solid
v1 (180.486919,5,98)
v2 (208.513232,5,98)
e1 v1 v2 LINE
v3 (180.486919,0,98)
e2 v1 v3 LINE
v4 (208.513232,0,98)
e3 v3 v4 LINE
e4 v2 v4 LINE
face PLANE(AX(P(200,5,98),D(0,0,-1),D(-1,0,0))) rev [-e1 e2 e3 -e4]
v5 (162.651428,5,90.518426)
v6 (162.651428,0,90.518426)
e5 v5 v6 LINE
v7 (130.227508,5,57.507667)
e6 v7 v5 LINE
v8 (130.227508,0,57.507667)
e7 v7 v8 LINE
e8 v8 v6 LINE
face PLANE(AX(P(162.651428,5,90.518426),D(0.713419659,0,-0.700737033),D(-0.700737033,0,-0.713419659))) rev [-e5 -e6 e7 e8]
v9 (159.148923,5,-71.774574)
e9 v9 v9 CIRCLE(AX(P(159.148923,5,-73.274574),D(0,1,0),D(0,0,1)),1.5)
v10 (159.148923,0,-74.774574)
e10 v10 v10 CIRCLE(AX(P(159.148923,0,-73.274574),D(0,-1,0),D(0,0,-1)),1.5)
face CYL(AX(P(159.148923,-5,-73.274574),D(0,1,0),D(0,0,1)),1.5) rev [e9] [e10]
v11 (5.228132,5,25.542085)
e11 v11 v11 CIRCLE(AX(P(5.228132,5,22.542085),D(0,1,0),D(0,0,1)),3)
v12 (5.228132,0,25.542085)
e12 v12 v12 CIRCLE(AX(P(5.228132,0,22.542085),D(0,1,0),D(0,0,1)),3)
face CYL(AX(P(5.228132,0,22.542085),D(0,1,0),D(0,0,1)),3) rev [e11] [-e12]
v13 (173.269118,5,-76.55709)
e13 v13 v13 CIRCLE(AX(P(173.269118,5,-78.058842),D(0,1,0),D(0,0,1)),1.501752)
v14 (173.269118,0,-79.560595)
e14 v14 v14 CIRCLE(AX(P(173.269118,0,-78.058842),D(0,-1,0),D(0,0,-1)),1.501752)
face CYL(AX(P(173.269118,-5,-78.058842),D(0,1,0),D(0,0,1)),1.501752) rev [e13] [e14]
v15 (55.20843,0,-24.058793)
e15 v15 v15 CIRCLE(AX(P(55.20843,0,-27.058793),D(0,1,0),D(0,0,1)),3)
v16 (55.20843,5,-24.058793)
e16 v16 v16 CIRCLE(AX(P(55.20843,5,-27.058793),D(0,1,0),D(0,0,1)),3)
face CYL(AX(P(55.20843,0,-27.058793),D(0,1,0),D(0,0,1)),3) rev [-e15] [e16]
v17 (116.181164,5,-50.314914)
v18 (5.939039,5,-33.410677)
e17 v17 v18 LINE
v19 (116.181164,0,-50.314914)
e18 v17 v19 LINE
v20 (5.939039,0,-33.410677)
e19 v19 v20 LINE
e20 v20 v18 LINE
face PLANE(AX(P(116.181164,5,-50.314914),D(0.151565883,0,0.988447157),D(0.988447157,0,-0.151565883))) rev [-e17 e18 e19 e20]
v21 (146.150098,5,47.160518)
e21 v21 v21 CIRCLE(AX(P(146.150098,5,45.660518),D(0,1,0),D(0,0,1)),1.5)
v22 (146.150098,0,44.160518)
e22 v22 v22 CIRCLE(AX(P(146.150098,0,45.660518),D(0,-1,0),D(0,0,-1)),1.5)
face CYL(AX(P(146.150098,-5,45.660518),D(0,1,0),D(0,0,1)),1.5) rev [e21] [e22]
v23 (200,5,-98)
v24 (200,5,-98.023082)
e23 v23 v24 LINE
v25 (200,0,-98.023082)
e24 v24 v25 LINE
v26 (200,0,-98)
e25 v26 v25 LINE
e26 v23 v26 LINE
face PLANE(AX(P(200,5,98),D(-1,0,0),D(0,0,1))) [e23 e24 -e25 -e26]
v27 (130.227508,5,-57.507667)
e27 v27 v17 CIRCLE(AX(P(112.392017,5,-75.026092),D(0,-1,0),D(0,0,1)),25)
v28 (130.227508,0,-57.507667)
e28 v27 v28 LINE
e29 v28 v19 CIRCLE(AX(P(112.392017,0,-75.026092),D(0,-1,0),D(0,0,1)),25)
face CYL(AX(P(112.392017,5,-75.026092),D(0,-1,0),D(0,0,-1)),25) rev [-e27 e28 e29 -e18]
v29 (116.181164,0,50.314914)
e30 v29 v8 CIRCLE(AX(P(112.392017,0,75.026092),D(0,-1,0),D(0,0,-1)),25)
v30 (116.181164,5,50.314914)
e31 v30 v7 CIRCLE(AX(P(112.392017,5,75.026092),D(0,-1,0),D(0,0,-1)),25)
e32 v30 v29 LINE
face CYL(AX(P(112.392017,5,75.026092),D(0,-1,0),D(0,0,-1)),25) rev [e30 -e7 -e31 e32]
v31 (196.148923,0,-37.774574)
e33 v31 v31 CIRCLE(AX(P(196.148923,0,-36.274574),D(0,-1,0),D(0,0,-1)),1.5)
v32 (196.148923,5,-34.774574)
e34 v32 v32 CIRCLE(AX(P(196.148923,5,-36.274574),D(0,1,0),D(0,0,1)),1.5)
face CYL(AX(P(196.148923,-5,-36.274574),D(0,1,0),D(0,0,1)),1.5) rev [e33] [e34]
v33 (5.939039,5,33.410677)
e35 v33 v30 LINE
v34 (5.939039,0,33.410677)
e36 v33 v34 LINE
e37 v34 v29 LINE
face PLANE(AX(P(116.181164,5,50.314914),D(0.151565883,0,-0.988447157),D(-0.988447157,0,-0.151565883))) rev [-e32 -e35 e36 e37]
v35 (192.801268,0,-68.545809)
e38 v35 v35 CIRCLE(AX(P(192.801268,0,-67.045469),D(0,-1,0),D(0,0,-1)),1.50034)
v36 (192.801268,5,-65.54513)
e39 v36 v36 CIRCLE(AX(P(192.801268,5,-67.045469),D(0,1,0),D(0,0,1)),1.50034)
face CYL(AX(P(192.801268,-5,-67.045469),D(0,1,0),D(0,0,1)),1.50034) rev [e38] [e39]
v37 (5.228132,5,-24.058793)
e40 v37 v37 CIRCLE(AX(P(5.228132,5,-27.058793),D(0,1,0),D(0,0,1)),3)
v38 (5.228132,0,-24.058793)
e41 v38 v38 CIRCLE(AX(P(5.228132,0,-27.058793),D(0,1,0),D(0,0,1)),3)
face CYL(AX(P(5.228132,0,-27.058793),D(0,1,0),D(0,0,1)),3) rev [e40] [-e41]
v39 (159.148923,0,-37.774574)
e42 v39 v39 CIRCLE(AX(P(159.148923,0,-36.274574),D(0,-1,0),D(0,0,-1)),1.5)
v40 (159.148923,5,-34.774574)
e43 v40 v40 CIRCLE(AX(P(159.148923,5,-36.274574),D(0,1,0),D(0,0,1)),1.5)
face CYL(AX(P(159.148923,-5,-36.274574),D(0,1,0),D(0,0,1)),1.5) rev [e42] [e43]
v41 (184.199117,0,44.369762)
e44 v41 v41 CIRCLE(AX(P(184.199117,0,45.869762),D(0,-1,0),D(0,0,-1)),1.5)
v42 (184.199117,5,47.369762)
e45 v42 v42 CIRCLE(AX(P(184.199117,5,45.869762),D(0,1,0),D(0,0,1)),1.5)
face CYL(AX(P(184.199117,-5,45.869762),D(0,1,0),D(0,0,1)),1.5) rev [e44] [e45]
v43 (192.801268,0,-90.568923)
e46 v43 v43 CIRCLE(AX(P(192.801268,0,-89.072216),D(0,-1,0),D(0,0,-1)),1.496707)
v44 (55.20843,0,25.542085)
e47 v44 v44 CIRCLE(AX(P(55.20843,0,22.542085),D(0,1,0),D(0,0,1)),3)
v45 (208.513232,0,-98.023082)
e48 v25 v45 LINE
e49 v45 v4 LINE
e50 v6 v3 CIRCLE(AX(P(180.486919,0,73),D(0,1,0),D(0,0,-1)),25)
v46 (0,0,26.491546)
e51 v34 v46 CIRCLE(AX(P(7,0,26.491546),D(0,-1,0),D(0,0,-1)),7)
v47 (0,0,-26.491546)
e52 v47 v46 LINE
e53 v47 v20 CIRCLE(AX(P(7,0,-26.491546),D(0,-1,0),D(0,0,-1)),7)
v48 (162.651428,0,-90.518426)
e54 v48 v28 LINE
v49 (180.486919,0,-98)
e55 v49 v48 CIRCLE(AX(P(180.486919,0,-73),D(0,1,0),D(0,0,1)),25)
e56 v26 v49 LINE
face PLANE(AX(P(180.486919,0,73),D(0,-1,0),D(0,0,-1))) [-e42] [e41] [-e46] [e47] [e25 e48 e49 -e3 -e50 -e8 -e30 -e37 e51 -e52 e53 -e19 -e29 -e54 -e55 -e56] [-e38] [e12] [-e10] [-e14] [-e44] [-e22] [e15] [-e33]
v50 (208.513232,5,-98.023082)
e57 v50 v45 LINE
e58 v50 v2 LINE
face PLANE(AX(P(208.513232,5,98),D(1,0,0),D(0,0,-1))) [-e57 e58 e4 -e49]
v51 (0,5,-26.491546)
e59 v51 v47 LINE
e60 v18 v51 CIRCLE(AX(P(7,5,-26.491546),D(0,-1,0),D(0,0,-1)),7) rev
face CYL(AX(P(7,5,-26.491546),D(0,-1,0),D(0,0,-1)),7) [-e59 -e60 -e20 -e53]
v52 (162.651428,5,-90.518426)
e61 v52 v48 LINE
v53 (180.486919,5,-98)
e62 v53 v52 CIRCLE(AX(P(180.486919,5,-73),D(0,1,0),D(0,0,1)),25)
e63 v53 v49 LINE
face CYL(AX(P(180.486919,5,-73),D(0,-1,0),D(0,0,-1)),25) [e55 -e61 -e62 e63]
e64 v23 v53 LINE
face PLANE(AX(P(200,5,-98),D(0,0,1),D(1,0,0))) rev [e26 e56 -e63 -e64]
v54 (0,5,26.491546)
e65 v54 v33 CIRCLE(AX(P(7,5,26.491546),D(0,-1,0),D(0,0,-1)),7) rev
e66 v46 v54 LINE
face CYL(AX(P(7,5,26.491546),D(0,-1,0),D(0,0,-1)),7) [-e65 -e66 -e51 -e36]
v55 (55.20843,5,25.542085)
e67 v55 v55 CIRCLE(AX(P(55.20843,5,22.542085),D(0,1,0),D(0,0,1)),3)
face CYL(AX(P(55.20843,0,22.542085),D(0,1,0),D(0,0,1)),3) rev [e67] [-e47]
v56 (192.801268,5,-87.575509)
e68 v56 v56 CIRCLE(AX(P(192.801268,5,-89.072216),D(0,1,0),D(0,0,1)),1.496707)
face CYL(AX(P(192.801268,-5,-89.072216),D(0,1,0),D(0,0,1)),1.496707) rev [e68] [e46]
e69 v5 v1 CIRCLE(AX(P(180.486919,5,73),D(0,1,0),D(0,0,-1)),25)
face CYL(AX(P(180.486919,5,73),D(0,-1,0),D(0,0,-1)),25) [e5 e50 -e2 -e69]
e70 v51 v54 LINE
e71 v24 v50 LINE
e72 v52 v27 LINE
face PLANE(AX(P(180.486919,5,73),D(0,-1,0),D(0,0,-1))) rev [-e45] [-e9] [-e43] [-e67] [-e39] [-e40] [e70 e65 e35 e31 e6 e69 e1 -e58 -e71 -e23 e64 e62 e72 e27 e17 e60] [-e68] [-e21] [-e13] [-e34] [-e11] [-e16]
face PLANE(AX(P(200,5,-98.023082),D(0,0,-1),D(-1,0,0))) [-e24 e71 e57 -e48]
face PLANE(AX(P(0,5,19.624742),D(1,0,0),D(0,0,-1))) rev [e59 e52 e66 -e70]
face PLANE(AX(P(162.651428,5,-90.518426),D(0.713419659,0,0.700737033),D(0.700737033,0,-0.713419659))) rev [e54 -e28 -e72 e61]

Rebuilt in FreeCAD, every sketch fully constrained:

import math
import FreeCAD as App
import Part
import Sketcher

V = App.Vector
Q = App.Units.Quantity


def edges_at(feature, points):
    """Names of the edges that pass closest to the given points."""
    edges = feature.Shape.Edges
    near = lambda p: min(range(len(edges)), key=lambda i: edges[i].distToShape(Part.Vertex(*p))[0])
    return sorted({f"Edge{near(p) + 1}" for p in points})

doc = App.newDocument("Part")
params = doc.addObject("Spreadsheet::Sheet", "Params")
for row, (alias, value) in enumerate([
    ("sketch1_radius", "25 mm"),
    ("sketch1_height", "65 mm"),
    ("sketch1_height2", "196 mm"),
    ("pad1_length", "5 mm"),
    ("fillet_radius", "7 mm"),
    ("sketch2_diameter", "6 mm"),
    ("pocket1_length", "5 mm"),
    ("sketch3_diameter", "3 mm"),
    ("pocket2_length", "10 mm"),
    ("sketch4_diameter", "3 mm"),
    ("pocket3_length", "10 mm"),
    ("pad2_length", "5 mm"),
    ("pocket4_length", "10 mm"),
], start=1):
    params.set(f"A{row}", alias)
    params.set(f"B{row}", "=" + value)
    params.setAlias(f"B{row}", alias)

body = doc.addObject("PartDesign::Body", "Body")

# Sketch on XZ plane
sketch1 = body.newObject("Sketcher::SketchObject", "Sketch")
sketch1.AttachmentSupport = (doc.getObject("XZ_Plane"), [""])
sketch1.MapMode = "FlatFace"
sketch1.addGeometry(Part.LineSegment(V(200, -98, 0), V(180, -98, 0)), False)
sketch1.addGeometry(Part.ArcOfCircle(Part.Circle(V(180, -73, 0), V(0, 0, 1), 25), math.radians(-136), math.radians(-90)), False)
sketch1.addGeometry(Part.LineSegment(V(163, -91, 0), V(130, -58, 0)), False)
sketch1.addGeometry(Part.ArcOfCircle(Part.Circle(V(112, -75, 0), V(0, 0, 1), 25), math.radians(44), math.radians(81)), False)
sketch1.addGeometry(Part.LineSegment(V(116, -50, 0), V(0, -32, 0)), False)
sketch1.addGeometry(Part.LineSegment(V(0, -32, 0), V(0, 32, 0)), False)
sketch1.addGeometry(Part.LineSegment(V(0, 32, 0), V(116, 50, 0)), False)
sketch1.addGeometry(Part.ArcOfCircle(Part.Circle(V(112, 75, 0), V(0, 0, 1), 25), math.radians(-81), math.radians(-44)), False)
sketch1.addGeometry(Part.LineSegment(V(130, 58, 0), V(163, 91, 0)), False)
sketch1.addGeometry(Part.ArcOfCircle(Part.Circle(V(180, 73, 0), V(0, 0, 1), 25), math.radians(90), math.radians(136)), False)
sketch1.addGeometry(Part.LineSegment(V(180, 98, 0), V(200, 98, 0)), False)
sketch1.addGeometry(Part.LineSegment(V(200, 98, 0), V(200, -98, 0)), False)
sketch1.addConstraint(Sketcher.Constraint("Tangent", 0, 2, 1, 2))
sketch1.addConstraint(Sketcher.Constraint("Tangent", 1, 1, 2, 1))
sketch1.addConstraint(Sketcher.Constraint("Tangent", 2, 2, 3, 1))
sketch1.addConstraint(Sketcher.Constraint("Tangent", 3, 2, 4, 1))
sketch1.addConstraint(Sketcher.Constraint("Coincident", 4, 2, 5, 1))
sketch1.addConstraint(Sketcher.Constraint("Coincident", 5, 2, 6, 1))
sketch1.addConstraint(Sketcher.Constraint("Tangent", 6, 2, 7, 1))
sketch1.addConstraint(Sketcher.Constraint("Tangent", 7, 2, 8, 1))
sketch1.addConstraint(Sketcher.Constraint("Tangent", 8, 2, 9, 2))
sketch1.addConstraint(Sketcher.Constraint("Tangent", 9, 1, 10, 1))
sketch1.addConstraint(Sketcher.Constraint("Coincident", 10, 2, 11, 1))
sketch1.addConstraint(Sketcher.Constraint("Coincident", 11, 2, 0, 1))
sketch1.addConstraint(Sketcher.Constraint("Horizontal", 0))
sketch1.addConstraint(Sketcher.Constraint("Vertical", 5))
sketch1.addConstraint(Sketcher.Constraint("Horizontal", 10))
sketch1.addConstraint(Sketcher.Constraint("Vertical", 11))
sketch1.addConstraint(Sketcher.Constraint("Equal", 1, 3))
sketch1.addConstraint(Sketcher.Constraint("Equal", 3, 7))
sketch1.addConstraint(Sketcher.Constraint("Equal", 7, 9))
sketch1.addConstraint(Sketcher.Constraint("Symmetric", 4, 2, 5, 2, -1, 1))
sketch1.addConstraint(Sketcher.Constraint("Symmetric", 3, 3, 7, 3, -1))
sketch1.addConstraint(Sketcher.Constraint("Symmetric", 1, 3, 9, 3, -1))
sketch1.addConstraint(Sketcher.Constraint("Radius", 1, Q("25 mm")))
sketch1.addConstraint(Sketcher.Constraint("DistanceY", 5, 1, 5, 2, Q("65 mm")))
sketch1.addConstraint(Sketcher.Constraint("DistanceY", 11, 2, 11, 1, Q("196 mm")))
sketch1.addConstraint(Sketcher.Constraint("DistanceX", -1, 1, 10, 2, Q("200 mm")))
sketch1.addConstraint(Sketcher.Constraint("DistanceX", 0, 2, 0, 1, Q("19.513081 mm")))
sketch1.addConstraint(Sketcher.Constraint("DistanceX", -1, 1, 2, 2, Q("130.227508 mm")))
sketch1.addConstraint(Sketcher.Constraint("DistanceX", 1, 1, 0, 2, Q("17.835491 mm")))
sketch1.setExpression("Constraints[22]", "Params.sketch1_radius")
sketch1.setExpression("Constraints[23]", "Params.sketch1_height")
sketch1.setExpression("Constraints[24]", "Params.sketch1_height2")
pad1 = body.newObject("PartDesign::Pad", "Pad")
pad1.Profile = sketch1
pad1.setExpression("Length", "Params.pad1_length")
pad1.Reversed = True
doc.recompute()

fillet = body.newObject("PartDesign::Fillet", "Fillet")
fillet.Base = (pad1, edges_at(pad1, [(0, 2.5, 32.5), (0, 2.5, -32.5)]))
fillet.setExpression("Radius", "Params.fillet_radius")

# Sketch on XZ plane
sketch2 = body.newObject("Sketcher::SketchObject", "Sketch001")
sketch2.AttachmentSupport = (doc.getObject("XZ_Plane"), [""])
sketch2.MapMode = "FlatFace"
sketch2.AttachmentOffset = App.Placement(V(0, 0, -5), App.Rotation())
sketch2.addGeometry(Part.Circle(V(5.2, 22.5, 0), V(0, 0, 1), 3), False)
sketch2.addGeometry(Part.Circle(V(5.2, -27.1, 0), V(0, 0, 1), 3), False)
sketch2.addGeometry(Part.Circle(V(55.2, 22.5, 0), V(0, 0, 1), 3), False)
sketch2.addGeometry(Part.Circle(V(55.2, -27.1, 0), V(0, 0, 1), 3), False)
sketch2.addConstraint(Sketcher.Constraint("Equal", 0, 1))
sketch2.addConstraint(Sketcher.Constraint("Equal", 1, 2))
sketch2.addConstraint(Sketcher.Constraint("Equal", 2, 3))
sketch2.addConstraint(Sketcher.Constraint("Horizontal", 0, 3, 2, 3))
sketch2.addConstraint(Sketcher.Constraint("Horizontal", 1, 3, 3, 3))
sketch2.addConstraint(Sketcher.Constraint("Vertical", 0, 3, 1, 3))
sketch2.addConstraint(Sketcher.Constraint("Vertical", 2, 3, 3, 3))
sketch2.addConstraint(Sketcher.Constraint("Diameter", 0, Q("6 mm")))
sketch2.addConstraint(Sketcher.Constraint("DistanceX", -1, 1, 2, 3, Q("55.20843 mm")))
sketch2.addConstraint(Sketcher.Constraint("DistanceX", -1, 1, 0, 3, Q("5.228132 mm")))
sketch2.addConstraint(Sketcher.Constraint("DistanceY", -1, 1, 0, 3, Q("22.542085 mm")))
sketch2.addConstraint(Sketcher.Constraint("DistanceY", 1, 3, -1, 1, Q("27.058793 mm")))
sketch2.setExpression("Constraints[7]", "Params.sketch2_diameter")
pocket1 = body.newObject("PartDesign::Pocket", "Pocket")
pocket1.Profile = sketch2
pocket1.setExpression("Length", "Params.pocket1_length")
pocket1.Reversed = True

# Sketch on XZ plane
sketch3 = body.newObject("Sketcher::SketchObject", "Sketch002")
sketch3.AttachmentSupport = (doc.getObject("XZ_Plane"), [""])
sketch3.MapMode = "FlatFace"
sketch3.AttachmentOffset = App.Placement(V(0, 0, -5), App.Rotation())
sketch3.addGeometry(Part.Circle(V(196.1, -36.3, 0), V(0, 0, 1), 1.5), False)
sketch3.addGeometry(Part.Circle(V(159.1, -73.3, 0), V(0, 0, 1), 1.5), False)
sketch3.addGeometry(Part.Circle(V(159.1, -36.3, 0), V(0, 0, 1), 1.5), False)
sketch3.addConstraint(Sketcher.Constraint("Equal", 0, 1))
sketch3.addConstraint(Sketcher.Constraint("Equal", 1, 2))
sketch3.addConstraint(Sketcher.Constraint("Horizontal", 0, 3, 2, 3))
sketch3.addConstraint(Sketcher.Constraint("Vertical", 1, 3, 2, 3))
sketch3.addConstraint(Sketcher.Constraint("Diameter", 0, Q("3 mm")))
sketch3.addConstraint(Sketcher.Constraint("DistanceX", 1, 3, 0, 3, Q("37 mm")))
sketch3.addConstraint(Sketcher.Constraint("DistanceY", 1, 3, 0, 3, Q("37 mm")))
sketch3.addConstraint(Sketcher.Constraint("DistanceX", -1, 1, 0, 3, Q("196.148923 mm")))
sketch3.addConstraint(Sketcher.Constraint("DistanceY", 0, 3, -1, 1, Q("36.274574 mm")))
sketch3.setExpression("Constraints[4]", "Params.sketch3_diameter")
pocket2 = body.newObject("PartDesign::Pocket", "Pocket001")
pocket2.Profile = sketch3
pocket2.setExpression("Length", "Params.pocket2_length")
pocket2.Reversed = True

# Sketch on XZ plane
sketch4 = body.newObject("Sketcher::SketchObject", "Sketch003")
sketch4.AttachmentSupport = (doc.getObject("XZ_Plane"), [""])
sketch4.MapMode = "FlatFace"
sketch4.AttachmentOffset = App.Placement(V(0, 0, -5), App.Rotation())
sketch4.addGeometry(Part.Circle(V(184.2, 45.9, 0), V(0, 0, 1), 1.5), False)
sketch4.addGeometry(Part.Circle(V(146.2, 45.7, 0), V(0, 0, 1), 1.5), False)
sketch4.addConstraint(Sketcher.Constraint("Equal", 0, 1))
sketch4.addConstraint(Sketcher.Constraint("Diameter", 0, Q("3 mm")))
sketch4.addConstraint(Sketcher.Constraint("DistanceY", -1, 1, 1, 3, Q("45.660518 mm")))
sketch4.addConstraint(Sketcher.Constraint("DistanceX", 1, 3, 0, 3, Q("38.049019 mm")))
sketch4.addConstraint(Sketcher.Constraint("DistanceX", -1, 1, 0, 3, Q("184.199117 mm")))
sketch4.addConstraint(Sketcher.Constraint("DistanceY", -1, 1, 0, 3, Q("45.869762 mm")))
sketch4.setExpression("Constraints[1]", "Params.sketch4_diameter")
pocket3 = body.newObject("PartDesign::Pocket", "Pocket002")
pocket3.Profile = sketch4
pocket3.setExpression("Length", "Params.pocket3_length")
pocket3.Reversed = True

# Sketch on XZ plane
sketch5 = body.newObject("Sketcher::SketchObject", "Sketch004")
sketch5.AttachmentSupport = (doc.getObject("XZ_Plane"), [""])
sketch5.MapMode = "FlatFace"
sketch5.addGeometry(Part.LineSegment(V(209, -98, 0), V(209, 98, 0)), False)
sketch5.addGeometry(Part.LineSegment(V(209, 98, 0), V(200, 98, 0)), False)
sketch5.addGeometry(Part.LineSegment(V(200, 98, 0), V(200, -98, 0)), False)
sketch5.addGeometry(Part.LineSegment(V(200, -98, 0), V(209, -98, 0)), False)
sketch5.addConstraint(Sketcher.Constraint("Coincident", 0, 2, 1, 1))
sketch5.addConstraint(Sketcher.Constraint("Coincident", 1, 2, 2, 1))
sketch5.addConstraint(Sketcher.Constraint("Coincident", 2, 2, 3, 1))
sketch5.addConstraint(Sketcher.Constraint("Coincident", 3, 2, 0, 1))
sketch5.addConstraint(Sketcher.Constraint("Vertical", 0))
sketch5.addConstraint(Sketcher.Constraint("Horizontal", 1))
sketch5.addConstraint(Sketcher.Constraint("Vertical", 2))
sketch5.addConstraint(Sketcher.Constraint("Horizontal", 3))
sketch5.addConstraint(Sketcher.Constraint("DistanceY", -1, 1, 0, 2, Q("98 mm")))
sketch5.addConstraint(Sketcher.Constraint("DistanceX", -1, 1, 1, 2, Q("200 mm")))
sketch5.addConstraint(Sketcher.Constraint("DistanceX", 1, 2, 1, 1, Q("8.513232 mm")))
sketch5.addConstraint(Sketcher.Constraint("DistanceY", 0, 1, 0, 2, Q("196.023082 mm")))
pad2 = body.newObject("PartDesign::Pad", "Pad001")
pad2.Profile = sketch5
pad2.setExpression("Length", "Params.pad2_length")
pad2.Reversed = True

# Sketch on XZ plane
sketch6 = body.newObject("Sketcher::SketchObject", "Sketch005")
sketch6.AttachmentSupport = (doc.getObject("XZ_Plane"), [""])
sketch6.MapMode = "FlatFace"
sketch6.AttachmentOffset = App.Placement(V(0, 0, -5), App.Rotation())
sketch6.addGeometry(Part.Circle(V(192.8, -89.1, 0), V(0, 0, 1), 1.5), False)
sketch6.addGeometry(Part.Circle(V(173.3, -78.1, 0), V(0, 0, 1), 1.5), False)
sketch6.addGeometry(Part.Circle(V(192.8, -67, 0), V(0, 0, 1), 1.5), False)
sketch6.addConstraint(Sketcher.Constraint("Vertical", 0, 3, 2, 3))
sketch6.addConstraint(Sketcher.Constraint("Diameter", 2, Q("3.000679 mm")))
sketch6.addConstraint(Sketcher.Constraint("Diameter", 0, Q("2.993414 mm")))
sketch6.addConstraint(Sketcher.Constraint("Diameter", 1, Q("3.003504 mm")))
sketch6.addConstraint(Sketcher.Constraint("DistanceX", -1, 1, 0, 3, Q("192.801268 mm")))
sketch6.addConstraint(Sketcher.Constraint("DistanceY", 2, 3, -1, 1, Q("67.045469 mm")))
sketch6.addConstraint(Sketcher.Constraint("DistanceX", 1, 3, 0, 3, Q("19.53215 mm")))
sketch6.addConstraint(Sketcher.Constraint("DistanceY", 0, 3, -1, 1, Q("89.072216 mm")))
sketch6.addConstraint(Sketcher.Constraint("DistanceY", 1, 3, -1, 1, Q("78.058842 mm")))
pocket4 = body.newObject("PartDesign::Pocket", "Pocket003")
pocket4.Profile = sketch6
pocket4.setExpression("Length", "Params.pocket4_length")
pocket4.Reversed = True

doc.recompute()
